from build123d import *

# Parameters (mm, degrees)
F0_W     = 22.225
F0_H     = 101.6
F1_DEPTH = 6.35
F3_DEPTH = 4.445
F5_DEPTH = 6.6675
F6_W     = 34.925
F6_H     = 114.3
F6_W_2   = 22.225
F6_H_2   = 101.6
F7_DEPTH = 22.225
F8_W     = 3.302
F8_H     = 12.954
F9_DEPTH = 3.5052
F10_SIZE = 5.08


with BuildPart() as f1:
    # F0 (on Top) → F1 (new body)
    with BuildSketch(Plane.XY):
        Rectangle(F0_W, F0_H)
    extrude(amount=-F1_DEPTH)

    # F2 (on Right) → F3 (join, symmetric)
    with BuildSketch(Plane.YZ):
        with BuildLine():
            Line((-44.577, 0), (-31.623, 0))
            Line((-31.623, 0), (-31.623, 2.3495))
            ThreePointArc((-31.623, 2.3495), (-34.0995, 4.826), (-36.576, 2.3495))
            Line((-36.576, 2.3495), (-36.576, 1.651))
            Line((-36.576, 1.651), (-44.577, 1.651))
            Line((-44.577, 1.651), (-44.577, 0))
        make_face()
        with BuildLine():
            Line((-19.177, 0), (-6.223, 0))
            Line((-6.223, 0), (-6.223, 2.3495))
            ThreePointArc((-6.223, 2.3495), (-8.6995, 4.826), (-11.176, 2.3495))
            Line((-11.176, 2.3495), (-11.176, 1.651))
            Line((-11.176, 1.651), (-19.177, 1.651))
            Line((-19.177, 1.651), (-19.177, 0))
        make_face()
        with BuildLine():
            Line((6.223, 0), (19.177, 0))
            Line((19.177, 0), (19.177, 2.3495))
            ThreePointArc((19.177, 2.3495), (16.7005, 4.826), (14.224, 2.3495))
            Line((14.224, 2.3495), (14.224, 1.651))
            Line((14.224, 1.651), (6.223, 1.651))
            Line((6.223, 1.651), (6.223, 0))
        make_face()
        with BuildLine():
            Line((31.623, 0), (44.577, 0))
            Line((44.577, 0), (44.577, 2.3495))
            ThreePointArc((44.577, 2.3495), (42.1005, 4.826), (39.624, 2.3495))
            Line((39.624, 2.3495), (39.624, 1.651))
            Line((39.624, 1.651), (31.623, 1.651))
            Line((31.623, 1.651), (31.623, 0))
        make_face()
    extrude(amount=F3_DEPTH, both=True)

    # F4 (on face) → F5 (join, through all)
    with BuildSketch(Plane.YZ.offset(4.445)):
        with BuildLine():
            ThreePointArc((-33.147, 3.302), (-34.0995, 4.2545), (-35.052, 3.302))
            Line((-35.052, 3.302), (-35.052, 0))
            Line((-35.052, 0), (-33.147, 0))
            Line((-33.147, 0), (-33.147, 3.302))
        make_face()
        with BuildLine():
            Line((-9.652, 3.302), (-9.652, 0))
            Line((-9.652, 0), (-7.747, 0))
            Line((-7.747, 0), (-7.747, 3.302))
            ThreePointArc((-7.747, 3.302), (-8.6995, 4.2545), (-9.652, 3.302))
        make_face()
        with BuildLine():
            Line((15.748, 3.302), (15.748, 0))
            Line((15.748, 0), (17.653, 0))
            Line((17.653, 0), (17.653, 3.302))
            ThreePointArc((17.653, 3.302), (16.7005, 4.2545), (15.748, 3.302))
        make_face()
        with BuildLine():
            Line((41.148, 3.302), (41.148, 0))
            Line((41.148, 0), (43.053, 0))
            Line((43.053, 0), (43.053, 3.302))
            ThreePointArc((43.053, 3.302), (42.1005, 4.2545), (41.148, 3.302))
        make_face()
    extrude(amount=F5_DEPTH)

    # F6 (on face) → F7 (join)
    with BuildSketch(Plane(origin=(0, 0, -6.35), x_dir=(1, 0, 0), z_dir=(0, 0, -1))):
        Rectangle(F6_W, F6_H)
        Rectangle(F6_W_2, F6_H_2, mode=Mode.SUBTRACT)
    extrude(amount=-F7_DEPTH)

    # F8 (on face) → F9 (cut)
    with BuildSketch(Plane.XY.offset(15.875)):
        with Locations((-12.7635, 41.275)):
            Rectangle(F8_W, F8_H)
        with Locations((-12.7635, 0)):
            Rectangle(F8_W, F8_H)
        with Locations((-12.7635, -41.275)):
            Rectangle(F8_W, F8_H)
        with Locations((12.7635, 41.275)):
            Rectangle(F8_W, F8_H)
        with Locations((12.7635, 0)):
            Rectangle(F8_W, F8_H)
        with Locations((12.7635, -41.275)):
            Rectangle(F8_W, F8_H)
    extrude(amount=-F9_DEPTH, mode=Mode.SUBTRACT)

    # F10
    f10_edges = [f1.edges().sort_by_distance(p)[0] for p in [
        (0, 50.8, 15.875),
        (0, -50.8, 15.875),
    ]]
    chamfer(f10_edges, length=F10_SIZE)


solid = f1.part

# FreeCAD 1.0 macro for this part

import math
import FreeCAD as App
import Part
import Sketcher

V = App.Vector
Q = App.Units.Quantity


def edges_at(feature, points):
    """Names of the edges that pass closest to the given points."""
    edges = feature.Shape.Edges
    near = lambda p: min(range(len(edges)), key=lambda i: edges[i].distToShape(Part.Vertex(*p))[0])
    return sorted({f"Edge{near(p) + 1}" for p in points})


def add_polygon(sketch, points):
    """Adds a closed chain of lines whose ends are joined by coincident constraints."""
    first, n = sketch.GeometryCount, len(points)
    for a, b in zip(points, points[1:] + points[:1]):
        sketch.addGeometry(Part.LineSegment(App.Vector(*a, 0), App.Vector(*b, 0)), False)
    for i in range(n):
        sketch.addConstraint(Sketcher.Constraint("Coincident", first + i, 2, first + (i + 1) % n, 1))

doc = App.newDocument("Part")
params = doc.addObject("Spreadsheet::Sheet", "Params")
for row, (alias, value) in enumerate([
    ("sketch1_height", "4 in"),
    ("sketch1_width", "0.875 in"),
    ("pad1_length", "0.25 in"),
    ("sketch2_width", "0.51 in"),
    ("sketch2_height", "0.065 in"),
    ("pad2_length", "0.35 in"),
    ("sketch3_height", "0.13 in"),
    ("pad3_length", "0.2625 in"),
    ("sketch4_height", "4 in"),
    ("sketch4_height2", "4.5 in"),
    ("sketch4_width", "1.375 in"),
    ("sketch4_width2", "0.875 in"),
    ("pad4_length", "0.875 in"),
    ("sketch5_width", "0.13 in"),
    ("sketch5_height", "0.51 in"),
    ("pocket1_length", "0.138 in"),
    ("chamfer_size", "0.2 in"),
], start=1):
    params.set(f"A{row}", alias)
    params.set(f"B{row}", "=" + value)
    params.setAlias(f"B{row}", alias)

body = doc.addObject("PartDesign::Body", "Body")

# Sketch on XY plane
sketch1 = body.newObject("Sketcher::SketchObject", "Sketch")
sketch1.AttachmentSupport = (doc.getObject("XY_Plane"), [""])
sketch1.MapMode = "FlatFace"
add_polygon(sketch1, [(-11, 51), (-11, -51), (11, -51), (11, 51)])  # lines 0-3
sketch1.addConstraint([
    Sketcher.Constraint("Vertical", 0),
    Sketcher.Constraint("Horizontal", 1),
    Sketcher.Constraint("Vertical", 2),
    Sketcher.Constraint("Horizontal", 3),
    Sketcher.Constraint("Symmetric", 0, 2, 2, 2, -1, 1),
    Sketcher.Constraint("DistanceY", 0, 2, 0, 1, Q("4 in")),
    Sketcher.Constraint("DistanceX", 1, 1, 1, 2, Q("0.875 in")),
])
sketch1.setExpression("Constraints[9]", "Params.sketch1_height")
sketch1.setExpression("Constraints[10]", "Params.sketch1_width")
pad1 = body.newObject("PartDesign::Pad", "Pad")
pad1.Profile = sketch1
pad1.setExpression("Length", "Params.pad1_length")
pad1.Reversed = True

# Sketch on YZ plane
sketch2 = body.newObject("Sketcher::SketchObject", "Sketch001")
sketch2.AttachmentSupport = (doc.getObject("YZ_Plane"), [""])
sketch2.MapMode = "FlatFace"
sketch2.addGeometry([
    Part.LineSegment(V(-44.6, 0, 0), V(-31.6, 0, 0)),  # 0
    Part.LineSegment(V(-31.6, 0, 0), V(-31.6, 2.3, 0)),  # 1
    Part.ArcOfCircle(Part.Circle(V(-34.1, 2.3, 0), V(0, 0, 1), 2.5), math.radians(0), math.radians(180)),  # 2
    Part.LineSegment(V(-36.6, 2.3, 0), V(-36.6, 1.7, 0)),  # 3
    Part.LineSegment(V(-36.6, 1.7, 0), V(-44.6, 1.7, 0)),  # 4
    Part.LineSegment(V(-44.6, 1.7, 0), V(-44.6, 0, 0)),  # 5
    Part.LineSegment(V(-19.2, 0, 0), V(-6.2, 0, 0)),  # 6
    Part.LineSegment(V(-6.2, 0, 0), V(-6.2, 2.3, 0)),  # 7
    Part.ArcOfCircle(Part.Circle(V(-8.7, 2.3, 0), V(0, 0, 1), 2.5), math.radians(0), math.radians(180)),  # 8
    Part.LineSegment(V(-11.2, 2.3, 0), V(-11.2, 1.7, 0)),  # 9
    Part.LineSegment(V(-11.2, 1.7, 0), V(-19.2, 1.7, 0)),  # 10
    Part.LineSegment(V(-19.2, 1.7, 0), V(-19.2, 0, 0)),  # 11
    Part.LineSegment(V(6.2, 0, 0), V(19.2, 0, 0)),  # 12
    Part.LineSegment(V(19.2, 0, 0), V(19.2, 2.3, 0)),  # 13
    Part.ArcOfCircle(Part.Circle(V(16.7, 2.3, 0), V(0, 0, 1), 2.5), math.radians(0), math.radians(180)),  # 14
    Part.LineSegment(V(14.2, 2.3, 0), V(14.2, 1.7, 0)),  # 15
    Part.LineSegment(V(14.2, 1.7, 0), V(6.2, 1.7, 0)),  # 16
    Part.LineSegment(V(6.2, 1.7, 0), V(6.2, 0, 0)),  # 17
    Part.LineSegment(V(31.6, 0, 0), V(44.6, 0, 0)),  # 18
    Part.LineSegment(V(44.6, 0, 0), V(44.6, 2.3, 0)),  # 19
    Part.ArcOfCircle(Part.Circle(V(42.1, 2.3, 0), V(0, 0, 1), 2.5), math.radians(0), math.radians(180)),  # 20
    Part.LineSegment(V(39.6, 2.3, 0), V(39.6, 1.7, 0)),  # 21
    Part.LineSegment(V(39.6, 1.7, 0), V(31.6, 1.7, 0)),  # 22
    Part.LineSegment(V(31.6, 1.7, 0), V(31.6, 0, 0)),  # 23
], False)
sketch2.addConstraint([
    Sketcher.Constraint("Coincident", 0, 2, 1, 1),
    Sketcher.Constraint("Tangent", 1, 2, 2, 1),
    Sketcher.Constraint("Tangent", 2, 2, 3, 1),
    Sketcher.Constraint("Coincident", 3, 2, 4, 1),
    Sketcher.Constraint("Coincident", 4, 2, 5, 1),
    Sketcher.Constraint("Coincident", 5, 2, 0, 1),
    Sketcher.Constraint("Coincident", 6, 2, 7, 1),
    Sketcher.Constraint("Tangent", 7, 2, 8, 1),
    Sketcher.Constraint("Tangent", 8, 2, 9, 1),
    Sketcher.Constraint("Coincident", 9, 2, 10, 1),
    Sketcher.Constraint("Coincident", 10, 2, 11, 1),
    Sketcher.Constraint("Coincident", 11, 2, 6, 1),
    Sketcher.Constraint("Coincident", 12, 2, 13, 1),
    Sketcher.Constraint("Tangent", 13, 2, 14, 1),
    Sketcher.Constraint("Tangent", 14, 2, 15, 1),
    Sketcher.Constraint("Coincident", 15, 2, 16, 1),
    Sketcher.Constraint("Coincident", 16, 2, 17, 1),
    Sketcher.Constraint("Coincident", 17, 2, 12, 1),
    Sketcher.Constraint("Coincident", 18, 2, 19, 1),
    Sketcher.Constraint("Tangent", 19, 2, 20, 1),
    Sketcher.Constraint("Tangent", 20, 2, 21, 1),
    Sketcher.Constraint("Coincident", 21, 2, 22, 1),
    Sketcher.Constraint("Coincident", 22, 2, 23, 1),
    Sketcher.Constraint("Coincident", 23, 2, 18, 1),
    Sketcher.Constraint("Horizontal", 0),
    Sketcher.Constraint("Vertical", 1),
    Sketcher.Constraint("Vertical", 3),
    Sketcher.Constraint("Horizontal", 4),
    Sketcher.Constraint("Vertical", 5),
    Sketcher.Constraint("Horizontal", 6),
    Sketcher.Constraint("Vertical", 7),
    Sketcher.Constraint("Vertical", 9),
    Sketcher.Constraint("Horizontal", 10),
    Sketcher.Constraint("Vertical", 11),
    Sketcher.Constraint("Horizontal", 12),
    Sketcher.Constraint("Vertical", 13),
    Sketcher.Constraint("Vertical", 15),
    Sketcher.Constraint("Horizontal", 16),
    Sketcher.Constraint("Vertical", 17),
    Sketcher.Constraint("Horizontal", 18),
    Sketcher.Constraint("Vertical", 19),
    Sketcher.Constraint("Vertical", 21),
    Sketcher.Constraint("Horizontal", 22),
    Sketcher.Constraint("Vertical", 23),
    Sketcher.Constraint("Equal", 2, 8),
    Sketcher.Constraint("Equal", 8, 14),
    Sketcher.Constraint("Equal", 14, 20),
    Sketcher.Constraint("Symmetric", 11, 2, 12, 2, -1, 1),
    Sketcher.Constraint("Symmetric", 5, 2, 18, 2, -1, 1),
    Sketcher.Constraint("Symmetric", 6, 2, 17, 2, -2),
    Sketcher.Constraint("Symmetric", 0, 2, 23, 2, -2),
    Sketcher.Constraint("Horizontal", 2, 3, 8, 3),
    Sketcher.Constraint("Horizontal", 8, 3, 14, 3),
    Sketcher.Constraint("Horizontal", 14, 3, 20, 3),
    Sketcher.Constraint("Horizontal", 4, 2, 9, 2),
    Sketcher.Constraint("Horizontal", 10, 2, 15, 2),
    Sketcher.Constraint("Horizontal", 16, 2, 21, 2),
    Sketcher.Constraint("Equal", 0, 6),
    Sketcher.Constraint("DistanceX", 2, 3, 8, 3, Q("1 in")),
    Sketcher.Constraint("DistanceX", 8, 3, 14, 3, Q("1 in")),
    Sketcher.Constraint("DistanceX", 0, 1, 0, 2, Q("0.51 in")),
    Sketcher.Constraint("Radius", 2, Q("0.0975 in")),
    Sketcher.Constraint("DistanceY", 5, 2, 5, 1, Q("0.065 in")),
    Sketcher.Constraint("DistanceY", 1, 1, 1, 2, Q("0.0925 in")),
])
sketch2.setExpression("Constraints[60]", "Params.sketch2_width")
sketch2.setExpression("Constraints[62]", "Params.sketch2_height")
pad2 = body.newObject("PartDesign::Pad", "Pad001")
pad2.Profile = sketch2
pad2.setExpression("Length", "Params.pad2_length")
pad2.Midplane = True

# Sketch on YZ plane
sketch3 = body.newObject("Sketcher::SketchObject", "Sketch002")
sketch3.AttachmentSupport = (doc.getObject("YZ_Plane"), [""])
sketch3.MapMode = "FlatFace"
sketch3.AttachmentOffset = App.Placement(V(0, 0, 0.175 * 25.4), App.Rotation())
sketch3.addGeometry([
    Part.ArcOfCircle(Part.Circle(V(-34.1, 3.3, 0), V(0, 0, 1), 1), math.radians(0), math.radians(180)),  # 0
    Part.LineSegment(V(-35.1, 3.3, 0), V(-35.1, 0, 0)),  # 1
    Part.LineSegment(V(-35.1, 0, 0), V(-33.1, 0, 0)),  # 2
    Part.LineSegment(V(-33.1, 0, 0), V(-33.1, 3.3, 0)),  # 3
    Part.LineSegment(V(-9.7, 3.3, 0), V(-9.7, 0, 0)),  # 4
    Part.LineSegment(V(-9.7, 0, 0), V(-7.7, 0, 0)),  # 5
    Part.LineSegment(V(-7.7, 0, 0), V(-7.7, 3.3, 0)),  # 6
    Part.ArcOfCircle(Part.Circle(V(-8.7, 3.3, 0), V(0, 0, 1), 1), math.radians(0), math.radians(180)),  # 7
    Part.LineSegment(V(15.7, 3.3, 0), V(15.7, 0, 0)),  # 8
    Part.LineSegment(V(15.7, 0, 0), V(17.7, 0, 0)),  # 9
    Part.LineSegment(V(17.7, 0, 0), V(17.7, 3.3, 0)),  # 10
    Part.ArcOfCircle(Part.Circle(V(16.7, 3.3, 0), V(0, 0, 1), 1), math.radians(0), math.radians(180)),  # 11
    Part.LineSegment(V(41.1, 3.3, 0), V(41.1, 0, 0)),  # 12
    Part.LineSegment(V(41.1, 0, 0), V(43.1, 0, 0)),  # 13
    Part.LineSegment(V(43.1, 0, 0), V(43.1, 3.3, 0)),  # 14
    Part.ArcOfCircle(Part.Circle(V(42.1, 3.3, 0), V(0, 0, 1), 1), math.radians(0), math.radians(180)),  # 15
], False)
sketch3.addConstraint([
    Sketcher.Constraint("Tangent", 0, 2, 1, 1),
    Sketcher.Constraint("Coincident", 1, 2, 2, 1),
    Sketcher.Constraint("Coincident", 2, 2, 3, 1),
    Sketcher.Constraint("Tangent", 3, 2, 0, 1),
    Sketcher.Constraint("Coincident", 4, 2, 5, 1),
    Sketcher.Constraint("Coincident", 5, 2, 6, 1),
    Sketcher.Constraint("Tangent", 6, 2, 7, 1),
    Sketcher.Constraint("Tangent", 7, 2, 4, 1),
    Sketcher.Constraint("Coincident", 8, 2, 9, 1),
    Sketcher.Constraint("Coincident", 9, 2, 10, 1),
    Sketcher.Constraint("Tangent", 10, 2, 11, 1),
    Sketcher.Constraint("Tangent", 11, 2, 8, 1),
    Sketcher.Constraint("Coincident", 12, 2, 13, 1),
    Sketcher.Constraint("Coincident", 13, 2, 14, 1),
    Sketcher.Constraint("Tangent", 14, 2, 15, 1),
    Sketcher.Constraint("Tangent", 15, 2, 12, 1),
    Sketcher.Constraint("Vertical", 1),
    Sketcher.Constraint("Horizontal", 2),
    Sketcher.Constraint("Vertical", 3),
    Sketcher.Constraint("Vertical", 4),
    Sketcher.Constraint("Horizontal", 5),
    Sketcher.Constraint("Vertical", 6),
    Sketcher.Constraint("Vertical", 8),
    Sketcher.Constraint("Horizontal", 9),
    Sketcher.Constraint("Vertical", 10),
    Sketcher.Constraint("Vertical", 12),
    Sketcher.Constraint("Horizontal", 13),
    Sketcher.Constraint("Vertical", 14),
    Sketcher.Constraint("Equal", 0, 7),
    Sketcher.Constraint("Equal", 7, 11),
    Sketcher.Constraint("Equal", 11, 15),
    Sketcher.Constraint("PointOnObject", 1, 2, -1),
    Sketcher.Constraint("PointOnObject", 4, 2, -1),
    Sketcher.Constraint("PointOnObject", 8, 2, -1),
    Sketcher.Constraint("PointOnObject", 12, 2, -1),
    Sketcher.Constraint("Horizontal", 0, 3, 7, 3),
    Sketcher.Constraint("Horizontal", 7, 3, 11, 3),
    Sketcher.Constraint("Horizontal", 11, 3, 15, 3),
    Sketcher.Constraint("DistanceX", 0, 3, 7, 3, Q("1 in")),
    Sketcher.Constraint("DistanceX", 7, 3, 11, 3, Q("1 in")),
    Sketcher.Constraint("DistanceX", 11, 3, 15, 3, Q("1 in")),
    Sketcher.Constraint("DistanceY", 1, 2, 1, 1, Q("0.13 in")),
    Sketcher.Constraint("Radius", 0, Q("0.0375 in")),
    Sketcher.Constraint("DistanceX", 0, 2, -1, 1, Q("1.38 in")),
])
sketch3.setExpression("Constraints[41]", "Params.sketch3_height")
pad3 = body.newObject("PartDesign::Pad", "Pad002")
pad3.Profile = sketch3
pad3.setExpression("Length", "Params.pad3_length")

# Sketch on XY plane
sketch4 = body.newObject("Sketcher::SketchObject", "Sketch003")
sketch4.AttachmentSupport = (doc.getObject("XY_Plane"), [""])
sketch4.MapMode = "FlatFace"
sketch4.AttachmentOffset = App.Placement(V(0, 0, -0.25 * 25.4), App.Rotation())
add_polygon(sketch4, [(-17, -57), (-17, 57), (17, 57), (17, -57)])  # lines 0-3
add_polygon(sketch4, [(11, 51), (-11, 51), (-11, -51), (11, -51)])  # lines 4-7
sketch4.addConstraint([
    Sketcher.Constraint("Vertical", 0),
    Sketcher.Constraint("Horizontal", 1),
    Sketcher.Constraint("Vertical", 2),
    Sketcher.Constraint("Horizontal", 3),
    Sketcher.Constraint("Horizontal", 4),
    Sketcher.Constraint("Vertical", 5),
    Sketcher.Constraint("Horizontal", 6),
    Sketcher.Constraint("Vertical", 7),
    Sketcher.Constraint("Symmetric", 0, 2, 2, 2, -1, 1),
    Sketcher.Constraint("Symmetric", 4, 2, 6, 2, -1, 1),
    Sketcher.Constraint("DistanceY", 5, 2, 5, 1, Q("4 in")),
    Sketcher.Constraint("DistanceY", 0, 1, 0, 2, Q("4.5 in")),
    Sketcher.Constraint("DistanceX", 1, 1, 1, 2, Q("1.375 in")),
    Sketcher.Constraint("DistanceX", 4, 2, 4, 1, Q("0.875 in")),
])
sketch4.setExpression("Constraints[18]", "Params.sketch4_height")
sketch4.setExpression("Constraints[19]", "Params.sketch4_height2")
sketch4.setExpression("Constraints[20]", "Params.sketch4_width")
sketch4.setExpression("Constraints[21]", "Params.sketch4_width2")
pad4 = body.newObject("PartDesign::Pad", "Pad003")
pad4.Profile = sketch4
pad4.setExpression("Length", "Params.pad4_length")

# Sketch on XY plane
sketch5 = body.newObject("Sketcher::SketchObject", "Sketch004")
sketch5.AttachmentSupport = (doc.getObject("XY_Plane"), [""])
sketch5.MapMode = "FlatFace"
sketch5.AttachmentOffset = App.Placement(V(0, 0, 0.625 * 25.4), App.Rotation())
add_polygon(sketch5, [(-14.4, 47.8), (-14.4, 34.8), (-11.1, 34.8), (-11.1, 47.8)])  # lines 0-3
add_polygon(sketch5, [(-14.4, 6.5), (-14.4, -6.5), (-11.1, -6.5), (-11.1, 6.5)])  # lines 4-7
add_polygon(sketch5, [(-14.4, -34.8), (-14.4, -47.8), (-11.1, -47.8), (-11.1, -34.8)])  # lines 8-11
add_polygon(sketch5, [(11.1, 47.8), (11.1, 34.8), (14.4, 34.8), (14.4, 47.8)])  # lines 12-15
add_polygon(sketch5, [(11.1, 6.5), (11.1, -6.5), (14.4, -6.5), (14.4, 6.5)])  # lines 16-19
add_polygon(sketch5, [(11.1, -34.8), (11.1, -47.8), (14.4, -47.8), (14.4, -34.8)])  # lines 20-23
sketch5.addConstraint([
    Sketcher.Constraint("Vertical", 0),
    Sketcher.Constraint("Horizontal", 1),
    Sketcher.Constraint("Vertical", 2),
    Sketcher.Constraint("Horizontal", 3),
    Sketcher.Constraint("Vertical", 4),
    Sketcher.Constraint("Horizontal", 5),
    Sketcher.Constraint("Vertical", 6),
    Sketcher.Constraint("Horizontal", 7),
    Sketcher.Constraint("Vertical", 8),
    Sketcher.Constraint("Horizontal", 9),
    Sketcher.Constraint("Vertical", 10),
    Sketcher.Constraint("Horizontal", 11),
    Sketcher.Constraint("Vertical", 12),
    Sketcher.Constraint("Horizontal", 13),
    Sketcher.Constraint("Vertical", 14),
    Sketcher.Constraint("Horizontal", 15),
    Sketcher.Constraint("Vertical", 16),
    Sketcher.Constraint("Horizontal", 17),
    Sketcher.Constraint("Vertical", 18),
    Sketcher.Constraint("Horizontal", 19),
    Sketcher.Constraint("Vertical", 20),
    Sketcher.Constraint("Horizontal", 21),
    Sketcher.Constraint("Vertical", 22),
    Sketcher.Constraint("Horizontal", 23),
    Sketcher.Constraint("Symmetric", 10, 2, 12, 2, -1, 1),
    Sketcher.Constraint("Symmetric", 8, 2, 14, 2, -1, 1),
    Sketcher.Constraint("Symmetric", 6, 2, 16, 2, -1, 1),
    Sketcher.Constraint("Symmetric", 4, 2, 18, 2, -1, 1),
    Sketcher.Constraint("Symmetric", 2, 2, 20, 2, -1, 1),
    Sketcher.Constraint("Symmetric", 0, 2, 22, 2, -1, 1),
    Sketcher.Constraint("Symmetric", 1, 2, 12, 2, -2),
    Sketcher.Constraint("Symmetric", 3, 2, 14, 2, -2),
    Sketcher.Constraint("Horizontal", 5, 2, 16, 2),
    Sketcher.Constraint("Vertical", 3, 2, 4, 2),
    Sketcher.Constraint("Vertical", 2, 2, 5, 2),
    Sketcher.Constraint("Equal", 2, 4),
    Sketcher.Constraint("DistanceX", 1, 1, 1, 2, Q("0.13 in")),
    Sketcher.Constraint("DistanceY", 0, 2, 0, 1, Q("0.51 in")),
    Sketcher.Constraint("DistanceY", -1, 1, 0, 2, Q("1.37 in")),
    Sketcher.Constraint("DistanceX", 1, 2, -1, 1, Q("0.4375 in")),
])
sketch5.setExpression("Constraints[60]", "Params.sketch5_width")
sketch5.setExpression("Constraints[61]", "Params.sketch5_height")
pocket1 = body.newObject("PartDesign::Pocket", "Pocket")
pocket1.Profile = sketch5
pocket1.setExpression("Length", "Params.pocket1_length")
doc.recompute()

chamfer = body.newObject("PartDesign::Chamfer", "Chamfer")
chamfer.Base = (pocket1, edges_at(pocket1, [(0, 50.8, 15.875), (0, -50.8, 15.875)]))
chamfer.setExpression("Size", "Params.chamfer_size")

doc.recompute()
